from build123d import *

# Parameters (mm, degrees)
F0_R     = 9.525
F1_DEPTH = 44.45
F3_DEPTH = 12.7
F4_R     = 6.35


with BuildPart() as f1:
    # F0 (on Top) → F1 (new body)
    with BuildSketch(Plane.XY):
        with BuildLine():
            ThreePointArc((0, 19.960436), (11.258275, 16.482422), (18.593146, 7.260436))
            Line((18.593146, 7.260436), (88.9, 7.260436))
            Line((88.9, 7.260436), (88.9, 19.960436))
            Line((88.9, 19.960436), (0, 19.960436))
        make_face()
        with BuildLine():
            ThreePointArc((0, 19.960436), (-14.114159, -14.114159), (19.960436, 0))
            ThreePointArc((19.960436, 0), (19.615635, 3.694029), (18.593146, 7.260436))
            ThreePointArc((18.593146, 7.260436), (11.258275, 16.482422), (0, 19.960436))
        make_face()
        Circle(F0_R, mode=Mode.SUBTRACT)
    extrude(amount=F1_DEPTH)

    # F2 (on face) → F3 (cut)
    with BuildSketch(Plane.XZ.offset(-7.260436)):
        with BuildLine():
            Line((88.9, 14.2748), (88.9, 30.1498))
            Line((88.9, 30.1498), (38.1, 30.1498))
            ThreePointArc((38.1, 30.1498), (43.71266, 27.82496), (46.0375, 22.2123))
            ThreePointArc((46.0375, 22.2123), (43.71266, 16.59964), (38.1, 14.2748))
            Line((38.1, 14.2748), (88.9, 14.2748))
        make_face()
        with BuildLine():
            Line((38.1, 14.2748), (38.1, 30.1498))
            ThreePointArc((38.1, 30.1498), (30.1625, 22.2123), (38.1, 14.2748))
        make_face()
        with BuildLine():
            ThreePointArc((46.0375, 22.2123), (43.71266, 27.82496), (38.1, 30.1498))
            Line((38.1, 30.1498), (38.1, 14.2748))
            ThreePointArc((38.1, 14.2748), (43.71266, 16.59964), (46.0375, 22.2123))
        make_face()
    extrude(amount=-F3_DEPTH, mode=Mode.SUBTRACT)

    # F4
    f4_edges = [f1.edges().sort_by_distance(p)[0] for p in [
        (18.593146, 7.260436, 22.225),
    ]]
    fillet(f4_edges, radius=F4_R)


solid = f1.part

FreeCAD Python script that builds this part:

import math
import FreeCAD as App
import Part
import Sketcher
Q = App.Units.Quantity


def edges_at(feature, points):
    """Names of the edges that pass closest to the given points."""
    edges = feature.Shape.Edges
    near = lambda p: min(range(len(edges)), key=lambda i: edges[i].distToShape(Part.Vertex(*p))[0])
    return sorted({f"Edge{near(p) + 1}" for p in points})

doc = App.newDocument("Part")
body = doc.addObject("PartDesign::Body", "Body")

# Sketch on XY plane
sketch1 = doc.addObject("Sketcher::SketchObject", "Sketch")
body.addObject(sketch1)
sketch1.AttachmentSupport = (doc.XY_Plane, [""])
sketch1.MapMode = "FlatFace"
sketch1.addGeometry(Part.LineSegment(App.Vector(18.593146, 7.260436, 0), App.Vector(88.9, 7.260436, 0)), False)
sketch1.addGeometry(Part.LineSegment(App.Vector(88.9, 7.260436, 0), App.Vector(88.9, 19.960436, 0)), False)
sketch1.addGeometry(Part.LineSegment(App.Vector(88.9, 19.960436, 0), App.Vector(0, 19.960436, 0)), False)
sketch1.addGeometry(Part.ArcOfCircle(Part.Circle(App.Vector(0, 0, 0), App.Vector(0, 0, 1), 19.960436), math.radians(90.000001), math.radians(359.999999)), False)
sketch1.addGeometry(Part.ArcOfCircle(Part.Circle(App.Vector(-0.000029, -0.000005, 0), App.Vector(0, 0, 1), 19.960465), math.radians(0.000015), math.radians(21.330127)), False)
sketch1.addGeometry(Part.Circle(App.Vector(0, 0, 0), App.Vector(0, 0, 1), 9.525), False)
sketch1.addConstraint(Sketcher.Constraint("Coincident", 0, 2, 1, 1))
sketch1.addConstraint(Sketcher.Constraint("Coincident", 1, 2, 2, 1))
sketch1.addConstraint(Sketcher.Constraint("Tangent", 2, 2, 3, 1))
sketch1.addConstraint(Sketcher.Constraint("Tangent", 3, 2, 4, 1))
sketch1.addConstraint(Sketcher.Constraint("Coincident", 4, 2, 0, 1))
sketch1.addConstraint(Sketcher.Constraint("Horizontal", 0))
sketch1.addConstraint(Sketcher.Constraint("Vertical", 1))
sketch1.addConstraint(Sketcher.Constraint("Horizontal", 2))
sketch1.addConstraint(Sketcher.Constraint("Coincident", 3, 3, -1, 1))
sketch1.addConstraint(Sketcher.Constraint("Coincident", 5, 3, -1, 1))
sketch1.addConstraint(Sketcher.Constraint("PointOnObject", 3, 2, -1))
sketch1.addConstraint(Sketcher.Constraint("Diameter", 5, Q("0.75 in")))
sketch1.addConstraint(Sketcher.Constraint("DistanceX", 2, 2, 2, 1, Q("3.5 in")))
sketch1.addConstraint(Sketcher.Constraint("DistanceY", 1, 1, 1, 2, Q("0.5 in")))
sketch1.addConstraint(Sketcher.Constraint("Radius", 3, Q("19.960436 mm")))
sketch1.addConstraint(Sketcher.Constraint("Radius", 4, Q("19.960465 mm")))
pad1 = doc.addObject("PartDesign::Pad", "Pad")
body.addObject(pad1)
pad1.Profile = sketch1
pad1.Length = Q("1.75 in")

# Sketch on XZ plane
sketch2 = doc.addObject("Sketcher::SketchObject", "Sketch001")
body.addObject(sketch2)
sketch2.AttachmentSupport = (doc.XZ_Plane, [""])
sketch2.MapMode = "FlatFace"
sketch2.AttachmentOffset = App.Placement(App.Vector(0, 0, -7.260436), App.Rotation())
sketch2.addGeometry(Part.LineSegment(App.Vector(88.9, 14.2748, 0), App.Vector(88.9, 30.1498, 0)), False)
sketch2.addGeometry(Part.LineSegment(App.Vector(88.9, 30.1498, 0), App.Vector(38.1, 30.1498, 0)), False)
sketch2.addGeometry(Part.ArcOfCircle(Part.Circle(App.Vector(38.1, 22.2123, 0), App.Vector(0, 0, 1), 7.9375), math.radians(90), math.radians(270)), False)
sketch2.addGeometry(Part.LineSegment(App.Vector(38.1, 14.2748, 0), App.Vector(88.9, 14.2748, 0)), False)
sketch2.addConstraint(Sketcher.Constraint("Coincident", 0, 2, 1, 1))
sketch2.addConstraint(Sketcher.Constraint("Tangent", 1, 2, 2, 1))
sketch2.addConstraint(Sketcher.Constraint("Tangent", 2, 2, 3, 1))
sketch2.addConstraint(Sketcher.Constraint("Coincident", 3, 2, 0, 1))
sketch2.addConstraint(Sketcher.Constraint("Vertical", 0))
sketch2.addConstraint(Sketcher.Constraint("Horizontal", 1))
sketch2.addConstraint(Sketcher.Constraint("Horizontal", 3))
sketch2.addConstraint(Sketcher.Constraint("DistanceX", 1, 2, 1, 1, Q("2 in")))
sketch2.addConstraint(Sketcher.Constraint("Radius", 2, Q("0.3125 in")))
sketch2.addConstraint(Sketcher.Constraint("DistanceX", -1, 1, 2, 3, Q("1.5 in")))
sketch2.addConstraint(Sketcher.Constraint("DistanceY", -1, 1, 0, 2, Q("1.187 in")))
pocket1 = doc.addObject("PartDesign::Pocket", "Pocket")
body.addObject(pocket1)
pocket1.Profile = sketch2
pocket1.Length = Q("0.5 in")
doc.recompute()

fillet = doc.addObject("PartDesign::Fillet", "Fillet")
body.addObject(fillet)
fillet.Base = (pocket1, edges_at(pocket1, [(18.593, 7.26, 22.225)]))
fillet.Radius = Q("0.25 in")

doc.recompute()
